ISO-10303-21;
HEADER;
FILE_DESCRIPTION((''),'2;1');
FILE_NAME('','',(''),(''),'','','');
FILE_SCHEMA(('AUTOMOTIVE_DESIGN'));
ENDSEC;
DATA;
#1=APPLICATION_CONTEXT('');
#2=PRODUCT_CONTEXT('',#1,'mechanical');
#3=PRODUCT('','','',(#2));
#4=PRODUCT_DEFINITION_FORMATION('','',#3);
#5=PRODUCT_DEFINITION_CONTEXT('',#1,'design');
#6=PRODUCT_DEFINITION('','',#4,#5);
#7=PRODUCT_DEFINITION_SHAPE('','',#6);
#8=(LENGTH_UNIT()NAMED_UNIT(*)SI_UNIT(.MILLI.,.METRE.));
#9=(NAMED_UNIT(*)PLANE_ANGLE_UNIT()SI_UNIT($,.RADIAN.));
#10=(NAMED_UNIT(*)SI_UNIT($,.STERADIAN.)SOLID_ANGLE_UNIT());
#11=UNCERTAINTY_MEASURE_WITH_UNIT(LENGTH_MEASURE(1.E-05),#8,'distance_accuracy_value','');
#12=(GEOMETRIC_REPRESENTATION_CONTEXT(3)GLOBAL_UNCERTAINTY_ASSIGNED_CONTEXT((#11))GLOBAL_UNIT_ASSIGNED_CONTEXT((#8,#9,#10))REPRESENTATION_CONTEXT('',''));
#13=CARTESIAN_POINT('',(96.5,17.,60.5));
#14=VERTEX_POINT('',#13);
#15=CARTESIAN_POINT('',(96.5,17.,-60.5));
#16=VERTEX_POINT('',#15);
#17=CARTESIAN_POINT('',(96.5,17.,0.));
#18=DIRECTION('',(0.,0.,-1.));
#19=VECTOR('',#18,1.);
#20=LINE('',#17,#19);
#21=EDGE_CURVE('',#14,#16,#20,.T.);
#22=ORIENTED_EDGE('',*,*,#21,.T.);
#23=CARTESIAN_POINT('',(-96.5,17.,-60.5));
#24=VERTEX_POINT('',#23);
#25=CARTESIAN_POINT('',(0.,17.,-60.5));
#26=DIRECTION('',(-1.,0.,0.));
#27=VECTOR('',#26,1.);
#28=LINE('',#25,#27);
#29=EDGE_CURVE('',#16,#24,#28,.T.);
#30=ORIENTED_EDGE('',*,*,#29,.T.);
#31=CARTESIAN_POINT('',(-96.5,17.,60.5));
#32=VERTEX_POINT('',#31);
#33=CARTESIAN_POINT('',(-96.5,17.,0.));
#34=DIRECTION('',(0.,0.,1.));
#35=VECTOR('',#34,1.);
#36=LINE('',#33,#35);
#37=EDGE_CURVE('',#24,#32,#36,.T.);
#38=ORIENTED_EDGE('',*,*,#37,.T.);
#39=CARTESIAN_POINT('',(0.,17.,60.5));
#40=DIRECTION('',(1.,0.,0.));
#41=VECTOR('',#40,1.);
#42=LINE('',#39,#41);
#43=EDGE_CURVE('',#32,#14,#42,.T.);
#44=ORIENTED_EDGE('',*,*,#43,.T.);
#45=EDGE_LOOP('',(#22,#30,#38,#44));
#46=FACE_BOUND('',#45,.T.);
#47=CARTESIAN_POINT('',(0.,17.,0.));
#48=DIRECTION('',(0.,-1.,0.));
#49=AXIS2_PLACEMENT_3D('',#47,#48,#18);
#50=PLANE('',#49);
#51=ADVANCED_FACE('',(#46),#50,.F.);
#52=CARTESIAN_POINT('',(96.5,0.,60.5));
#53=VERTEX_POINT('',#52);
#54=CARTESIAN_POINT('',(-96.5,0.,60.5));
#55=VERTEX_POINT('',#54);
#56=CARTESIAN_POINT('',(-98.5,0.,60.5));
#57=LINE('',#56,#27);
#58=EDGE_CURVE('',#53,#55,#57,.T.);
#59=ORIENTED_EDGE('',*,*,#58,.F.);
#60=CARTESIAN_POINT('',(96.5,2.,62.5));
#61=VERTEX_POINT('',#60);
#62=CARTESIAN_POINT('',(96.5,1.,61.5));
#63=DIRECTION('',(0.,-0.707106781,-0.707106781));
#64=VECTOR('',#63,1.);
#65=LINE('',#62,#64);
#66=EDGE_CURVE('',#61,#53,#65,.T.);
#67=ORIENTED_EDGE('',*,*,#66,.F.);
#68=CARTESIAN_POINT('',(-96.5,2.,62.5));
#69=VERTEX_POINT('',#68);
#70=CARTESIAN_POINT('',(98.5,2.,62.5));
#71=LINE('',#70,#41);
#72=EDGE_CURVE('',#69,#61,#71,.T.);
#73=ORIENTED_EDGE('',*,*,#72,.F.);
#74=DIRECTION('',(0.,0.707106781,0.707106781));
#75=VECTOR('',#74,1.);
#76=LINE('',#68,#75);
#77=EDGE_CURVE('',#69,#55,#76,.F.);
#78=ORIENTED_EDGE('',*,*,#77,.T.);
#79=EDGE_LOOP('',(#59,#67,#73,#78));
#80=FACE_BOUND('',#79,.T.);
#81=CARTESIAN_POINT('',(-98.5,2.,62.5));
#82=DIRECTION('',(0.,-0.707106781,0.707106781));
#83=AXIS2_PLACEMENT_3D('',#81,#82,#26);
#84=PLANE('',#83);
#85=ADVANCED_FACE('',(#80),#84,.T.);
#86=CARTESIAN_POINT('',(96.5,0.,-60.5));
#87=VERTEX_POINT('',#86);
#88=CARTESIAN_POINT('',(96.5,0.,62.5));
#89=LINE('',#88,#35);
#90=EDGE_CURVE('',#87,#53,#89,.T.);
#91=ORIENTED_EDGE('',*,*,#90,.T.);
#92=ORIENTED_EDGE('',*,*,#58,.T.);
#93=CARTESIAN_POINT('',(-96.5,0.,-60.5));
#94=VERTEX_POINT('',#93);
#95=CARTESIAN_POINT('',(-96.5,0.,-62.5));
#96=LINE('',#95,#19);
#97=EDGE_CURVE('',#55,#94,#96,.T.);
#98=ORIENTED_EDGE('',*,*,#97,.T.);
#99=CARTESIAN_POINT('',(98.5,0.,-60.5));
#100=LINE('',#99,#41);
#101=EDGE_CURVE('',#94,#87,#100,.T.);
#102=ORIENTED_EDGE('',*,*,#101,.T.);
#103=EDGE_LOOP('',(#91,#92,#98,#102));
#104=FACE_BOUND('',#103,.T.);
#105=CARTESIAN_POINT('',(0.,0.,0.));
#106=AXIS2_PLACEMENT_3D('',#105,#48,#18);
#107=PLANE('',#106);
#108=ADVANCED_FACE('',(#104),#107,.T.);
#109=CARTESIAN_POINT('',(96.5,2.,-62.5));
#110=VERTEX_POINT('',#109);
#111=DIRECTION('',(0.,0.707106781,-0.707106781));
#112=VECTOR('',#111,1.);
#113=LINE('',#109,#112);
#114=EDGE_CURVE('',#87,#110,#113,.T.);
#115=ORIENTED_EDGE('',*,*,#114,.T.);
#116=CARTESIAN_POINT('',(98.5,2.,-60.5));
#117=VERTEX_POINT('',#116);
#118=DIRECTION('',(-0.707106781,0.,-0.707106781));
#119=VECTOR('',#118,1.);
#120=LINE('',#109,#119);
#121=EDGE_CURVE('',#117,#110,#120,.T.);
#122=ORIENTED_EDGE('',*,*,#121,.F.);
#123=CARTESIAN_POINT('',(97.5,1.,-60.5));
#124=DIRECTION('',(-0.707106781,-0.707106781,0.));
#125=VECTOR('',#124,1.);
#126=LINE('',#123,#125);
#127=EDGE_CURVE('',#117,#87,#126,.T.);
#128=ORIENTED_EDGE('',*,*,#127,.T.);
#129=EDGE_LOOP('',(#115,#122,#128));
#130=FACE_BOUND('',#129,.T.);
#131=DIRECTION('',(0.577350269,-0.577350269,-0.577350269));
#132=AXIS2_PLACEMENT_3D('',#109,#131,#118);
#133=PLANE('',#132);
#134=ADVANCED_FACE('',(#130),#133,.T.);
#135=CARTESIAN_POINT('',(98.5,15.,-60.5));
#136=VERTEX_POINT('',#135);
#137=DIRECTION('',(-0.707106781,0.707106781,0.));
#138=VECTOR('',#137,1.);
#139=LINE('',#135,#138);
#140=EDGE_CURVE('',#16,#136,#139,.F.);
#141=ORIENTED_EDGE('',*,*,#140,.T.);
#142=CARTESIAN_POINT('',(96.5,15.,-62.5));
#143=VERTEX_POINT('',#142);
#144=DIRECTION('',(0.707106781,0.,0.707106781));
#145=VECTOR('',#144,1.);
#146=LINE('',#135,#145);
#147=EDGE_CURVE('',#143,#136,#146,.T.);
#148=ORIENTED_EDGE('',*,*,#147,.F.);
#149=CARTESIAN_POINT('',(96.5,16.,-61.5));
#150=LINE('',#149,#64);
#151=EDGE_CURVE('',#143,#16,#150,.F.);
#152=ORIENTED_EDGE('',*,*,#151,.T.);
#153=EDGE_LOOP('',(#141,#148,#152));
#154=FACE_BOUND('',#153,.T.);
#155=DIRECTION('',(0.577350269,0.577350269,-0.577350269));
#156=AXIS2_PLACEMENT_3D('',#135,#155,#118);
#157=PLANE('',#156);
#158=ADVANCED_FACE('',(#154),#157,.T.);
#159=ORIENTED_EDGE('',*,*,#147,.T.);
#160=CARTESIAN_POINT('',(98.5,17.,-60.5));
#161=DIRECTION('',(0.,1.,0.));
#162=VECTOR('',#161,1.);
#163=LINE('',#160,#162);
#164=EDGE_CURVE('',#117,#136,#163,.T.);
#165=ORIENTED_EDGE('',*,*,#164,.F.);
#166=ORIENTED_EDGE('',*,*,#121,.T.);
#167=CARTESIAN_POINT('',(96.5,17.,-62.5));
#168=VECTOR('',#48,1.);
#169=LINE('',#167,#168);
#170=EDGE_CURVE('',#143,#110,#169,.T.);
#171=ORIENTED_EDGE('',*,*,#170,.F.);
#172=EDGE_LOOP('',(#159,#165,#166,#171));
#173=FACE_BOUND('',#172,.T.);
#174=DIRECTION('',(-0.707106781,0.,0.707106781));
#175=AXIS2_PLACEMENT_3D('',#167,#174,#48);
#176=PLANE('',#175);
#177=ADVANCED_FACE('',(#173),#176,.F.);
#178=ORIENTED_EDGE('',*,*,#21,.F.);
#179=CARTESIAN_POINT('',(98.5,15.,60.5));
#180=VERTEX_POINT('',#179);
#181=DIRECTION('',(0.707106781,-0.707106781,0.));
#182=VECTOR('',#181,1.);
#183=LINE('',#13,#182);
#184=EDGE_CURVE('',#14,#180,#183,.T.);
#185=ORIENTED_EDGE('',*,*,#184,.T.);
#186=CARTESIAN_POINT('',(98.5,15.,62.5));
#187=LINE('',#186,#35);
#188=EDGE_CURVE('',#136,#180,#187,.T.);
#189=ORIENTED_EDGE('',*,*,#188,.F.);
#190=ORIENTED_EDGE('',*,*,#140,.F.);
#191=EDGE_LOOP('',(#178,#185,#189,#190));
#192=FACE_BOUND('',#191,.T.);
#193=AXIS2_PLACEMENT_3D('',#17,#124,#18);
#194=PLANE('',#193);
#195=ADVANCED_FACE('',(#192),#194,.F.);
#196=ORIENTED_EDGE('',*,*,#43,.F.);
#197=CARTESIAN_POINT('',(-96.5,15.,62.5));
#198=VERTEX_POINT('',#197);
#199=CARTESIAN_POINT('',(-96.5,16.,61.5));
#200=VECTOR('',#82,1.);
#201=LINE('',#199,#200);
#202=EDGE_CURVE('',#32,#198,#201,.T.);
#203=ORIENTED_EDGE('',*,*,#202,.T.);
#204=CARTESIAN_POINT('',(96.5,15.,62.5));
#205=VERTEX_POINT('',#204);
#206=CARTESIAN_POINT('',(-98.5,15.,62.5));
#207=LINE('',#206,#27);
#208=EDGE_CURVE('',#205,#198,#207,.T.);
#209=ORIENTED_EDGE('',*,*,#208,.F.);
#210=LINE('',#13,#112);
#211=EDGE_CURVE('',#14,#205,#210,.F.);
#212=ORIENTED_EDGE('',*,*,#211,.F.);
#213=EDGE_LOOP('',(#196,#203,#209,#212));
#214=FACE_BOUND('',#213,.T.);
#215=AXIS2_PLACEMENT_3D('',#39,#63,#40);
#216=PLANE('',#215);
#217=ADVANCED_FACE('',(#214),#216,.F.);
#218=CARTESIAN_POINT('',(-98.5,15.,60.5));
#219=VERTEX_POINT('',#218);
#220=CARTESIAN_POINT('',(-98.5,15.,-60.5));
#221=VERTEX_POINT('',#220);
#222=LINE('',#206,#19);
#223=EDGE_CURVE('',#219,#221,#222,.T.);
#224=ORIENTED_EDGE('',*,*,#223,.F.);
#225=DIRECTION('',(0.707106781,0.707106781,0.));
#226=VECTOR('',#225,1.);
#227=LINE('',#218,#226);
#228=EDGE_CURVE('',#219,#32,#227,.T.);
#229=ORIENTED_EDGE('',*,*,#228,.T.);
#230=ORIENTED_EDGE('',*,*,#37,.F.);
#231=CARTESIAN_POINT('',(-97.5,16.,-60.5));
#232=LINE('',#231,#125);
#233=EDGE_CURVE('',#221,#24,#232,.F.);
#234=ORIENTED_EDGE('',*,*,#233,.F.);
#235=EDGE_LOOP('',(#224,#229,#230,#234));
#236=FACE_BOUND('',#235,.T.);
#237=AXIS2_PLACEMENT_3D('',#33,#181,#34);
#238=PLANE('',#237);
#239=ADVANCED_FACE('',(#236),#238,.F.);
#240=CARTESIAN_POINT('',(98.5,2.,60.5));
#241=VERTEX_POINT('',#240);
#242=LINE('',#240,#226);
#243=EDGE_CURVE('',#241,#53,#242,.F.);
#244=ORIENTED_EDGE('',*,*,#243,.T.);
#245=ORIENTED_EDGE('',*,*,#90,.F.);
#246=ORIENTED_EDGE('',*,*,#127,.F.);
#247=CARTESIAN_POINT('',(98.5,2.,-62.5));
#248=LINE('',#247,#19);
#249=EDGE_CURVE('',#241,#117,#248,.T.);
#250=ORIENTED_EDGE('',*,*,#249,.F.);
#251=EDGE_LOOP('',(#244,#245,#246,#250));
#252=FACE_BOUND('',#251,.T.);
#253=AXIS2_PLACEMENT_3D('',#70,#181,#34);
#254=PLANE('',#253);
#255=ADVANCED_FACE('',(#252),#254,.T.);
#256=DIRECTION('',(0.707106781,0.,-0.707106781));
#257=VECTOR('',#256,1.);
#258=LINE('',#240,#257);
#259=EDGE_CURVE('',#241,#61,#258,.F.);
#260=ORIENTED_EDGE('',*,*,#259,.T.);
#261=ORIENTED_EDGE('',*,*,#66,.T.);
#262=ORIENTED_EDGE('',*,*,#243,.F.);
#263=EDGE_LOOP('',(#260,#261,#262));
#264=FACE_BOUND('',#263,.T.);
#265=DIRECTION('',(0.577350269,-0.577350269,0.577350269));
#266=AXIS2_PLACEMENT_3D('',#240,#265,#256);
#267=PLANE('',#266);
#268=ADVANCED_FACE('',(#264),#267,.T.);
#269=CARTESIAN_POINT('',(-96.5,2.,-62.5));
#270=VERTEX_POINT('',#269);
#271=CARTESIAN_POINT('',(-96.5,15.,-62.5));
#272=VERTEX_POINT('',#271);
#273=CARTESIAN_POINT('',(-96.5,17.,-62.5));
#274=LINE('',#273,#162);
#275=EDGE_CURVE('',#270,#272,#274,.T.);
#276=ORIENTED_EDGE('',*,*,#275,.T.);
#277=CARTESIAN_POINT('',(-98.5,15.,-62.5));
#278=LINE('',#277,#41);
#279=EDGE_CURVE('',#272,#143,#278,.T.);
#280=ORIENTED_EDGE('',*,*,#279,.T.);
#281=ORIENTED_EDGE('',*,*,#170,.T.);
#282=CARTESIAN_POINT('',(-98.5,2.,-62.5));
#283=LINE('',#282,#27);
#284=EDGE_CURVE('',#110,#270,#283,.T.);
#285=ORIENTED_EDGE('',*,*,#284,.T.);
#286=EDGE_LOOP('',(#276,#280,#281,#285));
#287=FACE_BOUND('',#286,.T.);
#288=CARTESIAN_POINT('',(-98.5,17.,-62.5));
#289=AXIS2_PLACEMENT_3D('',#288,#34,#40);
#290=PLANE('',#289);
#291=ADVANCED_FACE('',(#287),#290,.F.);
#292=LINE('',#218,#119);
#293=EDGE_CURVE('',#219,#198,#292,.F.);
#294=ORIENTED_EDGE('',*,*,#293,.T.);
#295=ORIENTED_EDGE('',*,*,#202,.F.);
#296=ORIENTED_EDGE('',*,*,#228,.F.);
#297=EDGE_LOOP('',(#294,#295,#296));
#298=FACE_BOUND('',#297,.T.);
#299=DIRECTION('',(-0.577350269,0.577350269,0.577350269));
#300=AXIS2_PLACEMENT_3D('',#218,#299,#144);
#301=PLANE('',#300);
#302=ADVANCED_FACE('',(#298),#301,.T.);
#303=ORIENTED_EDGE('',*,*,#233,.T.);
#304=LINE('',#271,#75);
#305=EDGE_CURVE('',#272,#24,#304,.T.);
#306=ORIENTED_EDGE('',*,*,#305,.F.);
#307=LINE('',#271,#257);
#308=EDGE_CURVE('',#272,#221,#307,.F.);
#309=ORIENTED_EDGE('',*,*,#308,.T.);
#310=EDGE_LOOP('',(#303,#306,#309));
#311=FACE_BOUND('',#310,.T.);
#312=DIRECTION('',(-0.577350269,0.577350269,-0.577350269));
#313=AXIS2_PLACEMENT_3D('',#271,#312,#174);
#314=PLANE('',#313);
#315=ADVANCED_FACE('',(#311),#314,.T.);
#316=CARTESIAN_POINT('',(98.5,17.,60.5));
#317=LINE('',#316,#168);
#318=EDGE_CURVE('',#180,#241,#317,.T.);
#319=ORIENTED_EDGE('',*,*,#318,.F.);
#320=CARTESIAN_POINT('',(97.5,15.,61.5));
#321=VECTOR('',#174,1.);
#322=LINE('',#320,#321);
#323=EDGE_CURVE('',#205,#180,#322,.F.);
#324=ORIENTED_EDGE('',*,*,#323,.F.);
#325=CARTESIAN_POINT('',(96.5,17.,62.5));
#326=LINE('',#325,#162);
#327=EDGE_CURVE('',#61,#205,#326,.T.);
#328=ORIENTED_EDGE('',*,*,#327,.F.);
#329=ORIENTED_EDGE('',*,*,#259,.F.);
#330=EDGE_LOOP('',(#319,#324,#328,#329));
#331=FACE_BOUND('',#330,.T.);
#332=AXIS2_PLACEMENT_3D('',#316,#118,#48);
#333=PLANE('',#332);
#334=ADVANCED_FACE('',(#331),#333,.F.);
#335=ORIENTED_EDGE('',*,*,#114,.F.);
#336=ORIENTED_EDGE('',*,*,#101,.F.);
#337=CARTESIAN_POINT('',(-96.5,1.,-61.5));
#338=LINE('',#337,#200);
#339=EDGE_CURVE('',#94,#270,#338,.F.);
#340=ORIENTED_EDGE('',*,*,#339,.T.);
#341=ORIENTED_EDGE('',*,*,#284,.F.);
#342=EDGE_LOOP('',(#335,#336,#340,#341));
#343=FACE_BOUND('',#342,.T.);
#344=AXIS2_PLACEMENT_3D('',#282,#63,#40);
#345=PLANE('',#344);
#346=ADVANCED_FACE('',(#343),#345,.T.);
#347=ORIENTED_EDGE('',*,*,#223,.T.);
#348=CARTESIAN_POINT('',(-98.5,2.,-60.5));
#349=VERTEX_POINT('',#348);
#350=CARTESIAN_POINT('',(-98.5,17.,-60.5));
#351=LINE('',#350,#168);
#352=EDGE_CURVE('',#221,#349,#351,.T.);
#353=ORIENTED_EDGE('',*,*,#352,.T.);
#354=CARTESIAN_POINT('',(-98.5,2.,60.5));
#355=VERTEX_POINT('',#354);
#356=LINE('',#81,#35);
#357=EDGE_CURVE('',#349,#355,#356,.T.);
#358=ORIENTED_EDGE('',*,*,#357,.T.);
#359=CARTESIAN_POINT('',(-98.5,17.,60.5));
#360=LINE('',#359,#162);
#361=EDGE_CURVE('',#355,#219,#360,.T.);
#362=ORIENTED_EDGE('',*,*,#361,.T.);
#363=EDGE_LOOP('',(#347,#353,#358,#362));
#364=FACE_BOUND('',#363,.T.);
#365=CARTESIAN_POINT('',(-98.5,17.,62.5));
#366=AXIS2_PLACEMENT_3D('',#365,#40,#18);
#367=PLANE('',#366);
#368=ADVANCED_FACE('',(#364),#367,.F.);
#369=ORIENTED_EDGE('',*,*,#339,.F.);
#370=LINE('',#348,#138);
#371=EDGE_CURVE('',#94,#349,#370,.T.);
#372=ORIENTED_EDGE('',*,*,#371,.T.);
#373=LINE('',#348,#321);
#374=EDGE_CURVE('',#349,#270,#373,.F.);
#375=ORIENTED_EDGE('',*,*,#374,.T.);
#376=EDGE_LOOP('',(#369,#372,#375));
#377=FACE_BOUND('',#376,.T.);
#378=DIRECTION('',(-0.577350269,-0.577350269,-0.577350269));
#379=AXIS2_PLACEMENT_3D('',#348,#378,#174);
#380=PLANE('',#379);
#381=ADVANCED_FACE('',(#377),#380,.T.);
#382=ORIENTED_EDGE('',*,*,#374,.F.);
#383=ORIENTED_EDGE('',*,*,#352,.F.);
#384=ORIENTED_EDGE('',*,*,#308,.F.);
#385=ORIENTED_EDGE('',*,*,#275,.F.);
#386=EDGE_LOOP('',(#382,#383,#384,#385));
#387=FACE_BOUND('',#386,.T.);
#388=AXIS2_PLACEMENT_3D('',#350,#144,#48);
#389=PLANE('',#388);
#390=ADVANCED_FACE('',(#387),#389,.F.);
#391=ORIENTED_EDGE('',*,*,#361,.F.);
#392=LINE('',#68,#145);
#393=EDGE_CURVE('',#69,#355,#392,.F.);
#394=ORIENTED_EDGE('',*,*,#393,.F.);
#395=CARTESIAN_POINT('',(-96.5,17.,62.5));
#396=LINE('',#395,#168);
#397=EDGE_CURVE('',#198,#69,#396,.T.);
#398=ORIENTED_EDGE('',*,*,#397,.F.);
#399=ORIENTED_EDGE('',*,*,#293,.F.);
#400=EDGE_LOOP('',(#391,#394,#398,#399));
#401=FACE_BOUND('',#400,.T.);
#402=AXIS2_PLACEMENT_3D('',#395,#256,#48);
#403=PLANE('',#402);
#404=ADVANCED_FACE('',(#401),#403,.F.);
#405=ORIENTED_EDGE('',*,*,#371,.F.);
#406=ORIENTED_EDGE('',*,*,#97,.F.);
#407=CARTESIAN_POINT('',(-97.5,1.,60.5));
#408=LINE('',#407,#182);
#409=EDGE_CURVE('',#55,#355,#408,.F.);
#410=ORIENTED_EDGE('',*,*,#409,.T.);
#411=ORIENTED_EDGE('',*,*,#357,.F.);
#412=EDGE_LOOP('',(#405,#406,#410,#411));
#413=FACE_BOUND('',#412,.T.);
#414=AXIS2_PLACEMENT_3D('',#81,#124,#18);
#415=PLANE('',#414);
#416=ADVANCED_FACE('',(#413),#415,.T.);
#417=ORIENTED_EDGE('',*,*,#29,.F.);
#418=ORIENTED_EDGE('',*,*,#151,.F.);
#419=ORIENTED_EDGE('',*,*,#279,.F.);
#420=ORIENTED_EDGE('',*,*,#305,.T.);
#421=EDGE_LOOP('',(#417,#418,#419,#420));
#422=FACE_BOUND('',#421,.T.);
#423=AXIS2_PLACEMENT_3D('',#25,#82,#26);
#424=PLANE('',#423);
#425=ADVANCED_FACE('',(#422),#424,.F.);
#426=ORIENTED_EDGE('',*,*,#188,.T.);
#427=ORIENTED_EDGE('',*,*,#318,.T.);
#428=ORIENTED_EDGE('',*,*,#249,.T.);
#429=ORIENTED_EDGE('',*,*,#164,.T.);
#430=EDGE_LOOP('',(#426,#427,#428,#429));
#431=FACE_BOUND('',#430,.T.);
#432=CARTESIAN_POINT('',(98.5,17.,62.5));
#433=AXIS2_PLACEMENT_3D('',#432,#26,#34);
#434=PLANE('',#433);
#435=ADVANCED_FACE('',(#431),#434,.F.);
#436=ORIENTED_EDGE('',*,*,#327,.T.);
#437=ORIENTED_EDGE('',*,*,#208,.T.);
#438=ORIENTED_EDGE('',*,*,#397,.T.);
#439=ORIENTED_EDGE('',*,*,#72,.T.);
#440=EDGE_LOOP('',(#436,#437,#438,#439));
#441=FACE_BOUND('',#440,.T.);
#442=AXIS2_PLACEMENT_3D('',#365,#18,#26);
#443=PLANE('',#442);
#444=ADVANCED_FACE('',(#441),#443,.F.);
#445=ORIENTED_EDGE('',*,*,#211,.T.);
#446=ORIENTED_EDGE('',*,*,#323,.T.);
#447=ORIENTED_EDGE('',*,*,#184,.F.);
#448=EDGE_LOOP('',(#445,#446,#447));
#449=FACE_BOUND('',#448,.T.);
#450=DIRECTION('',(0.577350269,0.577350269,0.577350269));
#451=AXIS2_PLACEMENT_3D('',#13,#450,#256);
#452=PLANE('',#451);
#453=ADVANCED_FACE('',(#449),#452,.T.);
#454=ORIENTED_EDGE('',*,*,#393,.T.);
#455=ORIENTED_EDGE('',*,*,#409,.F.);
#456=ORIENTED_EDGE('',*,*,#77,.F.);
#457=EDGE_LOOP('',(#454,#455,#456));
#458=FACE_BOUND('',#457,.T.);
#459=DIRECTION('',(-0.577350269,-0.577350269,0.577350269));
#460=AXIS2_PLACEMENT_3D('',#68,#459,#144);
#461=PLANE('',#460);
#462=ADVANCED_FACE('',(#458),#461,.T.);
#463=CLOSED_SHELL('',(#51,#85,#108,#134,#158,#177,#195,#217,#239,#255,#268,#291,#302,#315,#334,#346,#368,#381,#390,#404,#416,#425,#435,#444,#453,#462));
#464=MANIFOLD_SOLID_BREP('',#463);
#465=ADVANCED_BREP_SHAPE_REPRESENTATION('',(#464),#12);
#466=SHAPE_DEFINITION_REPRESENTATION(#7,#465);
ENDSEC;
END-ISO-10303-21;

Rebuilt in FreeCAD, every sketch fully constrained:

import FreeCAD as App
import Part
import Sketcher

V = App.Vector


def add_polygon(sketch, points):
    """Adds a closed chain of lines whose ends are joined by coincident constraints."""
    first, n = sketch.GeometryCount, len(points)
    for a, b in zip(points, points[1:] + points[:1]):
        sketch.addGeometry(Part.LineSegment(App.Vector(*a, 0), App.Vector(*b, 0)), False)
    for i in range(n):
        sketch.addConstraint(Sketcher.Constraint("Coincident", first + i, 2, first + (i + 1) % n, 1))

doc = App.newDocument("Part")
body = doc.addObject("PartDesign::Body", "Body")

# Sketch on XZ plane
sketch1 = doc.addObject("Sketcher::SketchObject", "Sketch")
body.addObject(sketch1)
sketch1.AttachmentSupport = (doc.XZ_Plane, [""])
sketch1.MapMode = "FlatFace"
add_polygon(sketch1, [(-98, -62), (-98, 62), (98, 62), (98, -62)])  # lines 0-3
sketch1.addConstraint([
    Sketcher.Constraint("Vertical", 0),
    Sketcher.Constraint("Horizontal", 1),
    Sketcher.Constraint("Vertical", 2),
    Sketcher.Constraint("Horizontal", 3),
    Sketcher.Constraint("Symmetric", 0, 2, 2, 2, -1, 1),
    Sketcher.Constraint("DistanceX", 1, 1, 1, 2, 197.0),
    Sketcher.Constraint("DistanceY", 0, 1, 0, 2, 125.0),
])
pad1 = doc.addObject("PartDesign::Pad", "Pad")
body.addObject(pad1)
pad1.Profile = sketch1
pad1.Length = 17
pad1.Reversed = True
doc.recompute()

chamfer = doc.addObject("PartDesign::Chamfer", "Chamfer")
body.addObject(chamfer)
chamfer.Base = (pad1, ["Edge1"])
chamfer.UseAllEdges = True
chamfer.Size = 2

doc.recompute()
